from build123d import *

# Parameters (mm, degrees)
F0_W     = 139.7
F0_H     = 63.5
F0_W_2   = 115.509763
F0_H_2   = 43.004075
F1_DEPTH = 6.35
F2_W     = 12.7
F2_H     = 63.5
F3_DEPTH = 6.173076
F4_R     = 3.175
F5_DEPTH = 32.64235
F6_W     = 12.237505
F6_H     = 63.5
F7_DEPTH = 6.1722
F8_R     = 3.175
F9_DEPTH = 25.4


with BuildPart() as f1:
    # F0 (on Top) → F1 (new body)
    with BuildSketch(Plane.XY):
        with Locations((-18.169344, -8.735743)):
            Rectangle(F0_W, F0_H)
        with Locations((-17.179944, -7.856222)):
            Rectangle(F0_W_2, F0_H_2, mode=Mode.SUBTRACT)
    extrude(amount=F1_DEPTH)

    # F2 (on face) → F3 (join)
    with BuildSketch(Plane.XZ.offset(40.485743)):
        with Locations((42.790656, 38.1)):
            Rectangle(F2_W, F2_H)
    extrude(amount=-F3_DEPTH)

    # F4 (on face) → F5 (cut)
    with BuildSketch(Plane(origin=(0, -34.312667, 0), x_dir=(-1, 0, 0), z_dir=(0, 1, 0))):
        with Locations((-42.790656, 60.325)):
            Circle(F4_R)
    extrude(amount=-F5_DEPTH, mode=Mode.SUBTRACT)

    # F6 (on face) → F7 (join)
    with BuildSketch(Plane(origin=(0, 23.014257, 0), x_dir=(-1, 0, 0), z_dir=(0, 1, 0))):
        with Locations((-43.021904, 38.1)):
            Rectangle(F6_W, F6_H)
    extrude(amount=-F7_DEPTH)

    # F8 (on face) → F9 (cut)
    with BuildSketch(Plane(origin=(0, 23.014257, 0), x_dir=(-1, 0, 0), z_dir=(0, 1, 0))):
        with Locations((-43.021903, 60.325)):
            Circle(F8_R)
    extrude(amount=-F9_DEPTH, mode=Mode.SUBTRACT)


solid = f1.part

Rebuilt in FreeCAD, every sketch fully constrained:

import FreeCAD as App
import Part
import Sketcher

V = App.Vector
Q = App.Units.Quantity

doc = App.newDocument("Part")
body = doc.addObject("PartDesign::Body", "Body")

# Sketch on XY plane
sketch1 = body.newObject("Sketcher::SketchObject", "Sketch")
sketch1.AttachmentSupport = (doc.getObject("XY_Plane"), [""])
sketch1.MapMode = "FlatFace"
sketch1.addGeometry(Part.LineSegment(V(-88, 23, 0), V(-88, -40, 0)), False)
sketch1.addGeometry(Part.LineSegment(V(-88, -40, 0), V(52, -40, 0)), False)
sketch1.addGeometry(Part.LineSegment(V(52, -40, 0), V(52, 23, 0)), False)
sketch1.addGeometry(Part.LineSegment(V(52, 23, 0), V(-88, 23, 0)), False)
sketch1.addGeometry(Part.LineSegment(V(41, -29, 0), V(-75, -29, 0)), False)
sketch1.addGeometry(Part.LineSegment(V(-75, -29, 0), V(-75, 14, 0)), False)
sketch1.addGeometry(Part.LineSegment(V(-75, 14, 0), V(41, 14, 0)), False)
sketch1.addGeometry(Part.LineSegment(V(41, 14, 0), V(41, -29, 0)), False)
sketch1.addConstraint(Sketcher.Constraint("Coincident", 0, 2, 1, 1))
sketch1.addConstraint(Sketcher.Constraint("Coincident", 1, 2, 2, 1))
sketch1.addConstraint(Sketcher.Constraint("Coincident", 2, 2, 3, 1))
sketch1.addConstraint(Sketcher.Constraint("Coincident", 3, 2, 0, 1))
sketch1.addConstraint(Sketcher.Constraint("Coincident", 4, 2, 5, 1))
sketch1.addConstraint(Sketcher.Constraint("Coincident", 5, 2, 6, 1))
sketch1.addConstraint(Sketcher.Constraint("Coincident", 6, 2, 7, 1))
sketch1.addConstraint(Sketcher.Constraint("Coincident", 7, 2, 4, 1))
sketch1.addConstraint(Sketcher.Constraint("Vertical", 0))
sketch1.addConstraint(Sketcher.Constraint("Horizontal", 1))
sketch1.addConstraint(Sketcher.Constraint("Vertical", 2))
sketch1.addConstraint(Sketcher.Constraint("Horizontal", 3))
sketch1.addConstraint(Sketcher.Constraint("Horizontal", 4))
sketch1.addConstraint(Sketcher.Constraint("Vertical", 5))
sketch1.addConstraint(Sketcher.Constraint("Horizontal", 6))
sketch1.addConstraint(Sketcher.Constraint("Vertical", 7))
sketch1.addConstraint(Sketcher.Constraint("DistanceX", 1, 1, 1, 2, Q("5.5 in")))
sketch1.addConstraint(Sketcher.Constraint("DistanceY", 0, 2, 0, 1, Q("2.5 in")))
sketch1.addConstraint(Sketcher.Constraint("DistanceX", 4, 2, 4, 1, Q("115.509763 mm")))
sketch1.addConstraint(Sketcher.Constraint("DistanceY", 5, 1, 5, 2, Q("43.004075 mm")))
sketch1.addConstraint(Sketcher.Constraint("DistanceY", 4, 2, -1, 1, Q("29.358259 mm")))
sketch1.addConstraint(Sketcher.Constraint("DistanceX", 0, 2, 4, 2, Q("13.084519 mm")))
sketch1.addConstraint(Sketcher.Constraint("DistanceY", 5, 2, 3, 2, Q("9.368442 mm")))
sketch1.addConstraint(Sketcher.Constraint("DistanceX", 0, 2, -1, 1, Q("88.019344 mm")))
pad1 = body.newObject("PartDesign::Pad", "Pad")
pad1.Profile = sketch1
pad1.Length = Q("0.25 in")

# Sketch on XZ plane
sketch2 = body.newObject("Sketcher::SketchObject", "Sketch001")
sketch2.AttachmentSupport = (doc.getObject("XZ_Plane"), [""])
sketch2.MapMode = "FlatFace"
sketch2.AttachmentOffset = App.Placement(V(0, 0, 40.485743), App.Rotation())
sketch2.addGeometry(Part.LineSegment(V(36, 70, 0), V(36, 6, 0)), False)
sketch2.addGeometry(Part.LineSegment(V(36, 6, 0), V(49, 6, 0)), False)
sketch2.addGeometry(Part.LineSegment(V(49, 6, 0), V(49, 70, 0)), False)
sketch2.addGeometry(Part.LineSegment(V(49, 70, 0), V(36, 70, 0)), False)
sketch2.addConstraint(Sketcher.Constraint("Coincident", 0, 2, 1, 1))
sketch2.addConstraint(Sketcher.Constraint("Coincident", 1, 2, 2, 1))
sketch2.addConstraint(Sketcher.Constraint("Coincident", 2, 2, 3, 1))
sketch2.addConstraint(Sketcher.Constraint("Coincident", 3, 2, 0, 1))
sketch2.addConstraint(Sketcher.Constraint("Vertical", 0))
sketch2.addConstraint(Sketcher.Constraint("Horizontal", 1))
sketch2.addConstraint(Sketcher.Constraint("Vertical", 2))
sketch2.addConstraint(Sketcher.Constraint("Horizontal", 3))
sketch2.addConstraint(Sketcher.Constraint("DistanceX", 1, 1, 1, 2, Q("0.5 in")))
sketch2.addConstraint(Sketcher.Constraint("DistanceY", 0, 2, 0, 1, Q("2.5 in")))
sketch2.addConstraint(Sketcher.Constraint("DistanceY", -1, 1, 0, 2, Q("0.25 in")))
sketch2.addConstraint(Sketcher.Constraint("DistanceX", -1, 1, 0, 2, Q("36.440656 mm")))
pad2 = body.newObject("PartDesign::Pad", "Pad001")
pad2.Profile = sketch2
pad2.Length = 6.173076
pad2.Reversed = True

# Sketch on XZ plane
sketch3 = body.newObject("Sketcher::SketchObject", "Sketch002")
sketch3.AttachmentSupport = (doc.getObject("XZ_Plane"), [""])
sketch3.MapMode = "FlatFace"
sketch3.AttachmentOffset = App.Placement(V(0, 0, 34.312667), App.Rotation())
sketch3.addGeometry(Part.Circle(V(42.8, 60.3, 0), V(0, 0, 1), 3.2), False)
sketch3.addConstraint(Sketcher.Constraint("Diameter", 0, Q("0.25 in")))
sketch3.addConstraint(Sketcher.Constraint("DistanceY", -1, 1, 0, 3, Q("2.375 in")))
sketch3.addConstraint(Sketcher.Constraint("DistanceX", -1, 1, 0, 3, Q("42.790656 mm")))
pocket1 = body.newObject("PartDesign::Pocket", "Pocket")
pocket1.Profile = sketch3
pocket1.Length = 32.64235
pocket1.Reversed = True

# Sketch on XZ plane
sketch4 = body.newObject("Sketcher::SketchObject", "Sketch003")
sketch4.AttachmentSupport = (doc.getObject("XZ_Plane"), [""])
sketch4.MapMode = "FlatFace"
sketch4.AttachmentOffset = App.Placement(V(0, 0, -23.014257), App.Rotation())
sketch4.addGeometry(Part.LineSegment(V(49, 70, 0), V(49, 6, 0)), False)
sketch4.addGeometry(Part.LineSegment(V(49, 6, 0), V(37, 6, 0)), False)
sketch4.addGeometry(Part.LineSegment(V(37, 6, 0), V(37, 70, 0)), False)
sketch4.addGeometry(Part.LineSegment(V(37, 70, 0), V(49, 70, 0)), False)
sketch4.addConstraint(Sketcher.Constraint("Coincident", 0, 2, 1, 1))
sketch4.addConstraint(Sketcher.Constraint("Coincident", 1, 2, 2, 1))
sketch4.addConstraint(Sketcher.Constraint("Coincident", 2, 2, 3, 1))
sketch4.addConstraint(Sketcher.Constraint("Coincident", 3, 2, 0, 1))
sketch4.addConstraint(Sketcher.Constraint("Vertical", 0))
sketch4.addConstraint(Sketcher.Constraint("Horizontal", 1))
sketch4.addConstraint(Sketcher.Constraint("Vertical", 2))
sketch4.addConstraint(Sketcher.Constraint("Horizontal", 3))
sketch4.addConstraint(Sketcher.Constraint("DistanceY", 0, 2, 0, 1, Q("2.5 in")))
sketch4.addConstraint(Sketcher.Constraint("DistanceY", -1, 1, 0, 2, Q("0.25 in")))
sketch4.addConstraint(Sketcher.Constraint("DistanceX", 1, 2, 1, 1, Q("12.237505 mm")))
sketch4.addConstraint(Sketcher.Constraint("DistanceX", -1, 1, 1, 2, Q("36.903151 mm")))
pad3 = body.newObject("PartDesign::Pad", "Pad002")
pad3.Profile = sketch4
pad3.Length = Q("0.243 in")

# Sketch on XZ plane
sketch5 = body.newObject("Sketcher::SketchObject", "Sketch004")
sketch5.AttachmentSupport = (doc.getObject("XZ_Plane"), [""])
sketch5.MapMode = "FlatFace"
sketch5.AttachmentOffset = App.Placement(V(0, 0, -23.014257), App.Rotation())
sketch5.addGeometry(Part.Circle(V(43, 60.3, 0), V(0, 0, 1), 3.2), False)
sketch5.addConstraint(Sketcher.Constraint("Diameter", 0, Q("0.25 in")))
sketch5.addConstraint(Sketcher.Constraint("DistanceY", -1, 1, 0, 3, Q("2.375 in")))
sketch5.addConstraint(Sketcher.Constraint("DistanceX", -1, 1, 0, 3, Q("43.021903 mm")))
pocket2 = body.newObject("PartDesign::Pocket", "Pocket001")
pocket2.Profile = sketch5
pocket2.Length = Q("1 in")
pocket2.Reversed = True

doc.recompute()
